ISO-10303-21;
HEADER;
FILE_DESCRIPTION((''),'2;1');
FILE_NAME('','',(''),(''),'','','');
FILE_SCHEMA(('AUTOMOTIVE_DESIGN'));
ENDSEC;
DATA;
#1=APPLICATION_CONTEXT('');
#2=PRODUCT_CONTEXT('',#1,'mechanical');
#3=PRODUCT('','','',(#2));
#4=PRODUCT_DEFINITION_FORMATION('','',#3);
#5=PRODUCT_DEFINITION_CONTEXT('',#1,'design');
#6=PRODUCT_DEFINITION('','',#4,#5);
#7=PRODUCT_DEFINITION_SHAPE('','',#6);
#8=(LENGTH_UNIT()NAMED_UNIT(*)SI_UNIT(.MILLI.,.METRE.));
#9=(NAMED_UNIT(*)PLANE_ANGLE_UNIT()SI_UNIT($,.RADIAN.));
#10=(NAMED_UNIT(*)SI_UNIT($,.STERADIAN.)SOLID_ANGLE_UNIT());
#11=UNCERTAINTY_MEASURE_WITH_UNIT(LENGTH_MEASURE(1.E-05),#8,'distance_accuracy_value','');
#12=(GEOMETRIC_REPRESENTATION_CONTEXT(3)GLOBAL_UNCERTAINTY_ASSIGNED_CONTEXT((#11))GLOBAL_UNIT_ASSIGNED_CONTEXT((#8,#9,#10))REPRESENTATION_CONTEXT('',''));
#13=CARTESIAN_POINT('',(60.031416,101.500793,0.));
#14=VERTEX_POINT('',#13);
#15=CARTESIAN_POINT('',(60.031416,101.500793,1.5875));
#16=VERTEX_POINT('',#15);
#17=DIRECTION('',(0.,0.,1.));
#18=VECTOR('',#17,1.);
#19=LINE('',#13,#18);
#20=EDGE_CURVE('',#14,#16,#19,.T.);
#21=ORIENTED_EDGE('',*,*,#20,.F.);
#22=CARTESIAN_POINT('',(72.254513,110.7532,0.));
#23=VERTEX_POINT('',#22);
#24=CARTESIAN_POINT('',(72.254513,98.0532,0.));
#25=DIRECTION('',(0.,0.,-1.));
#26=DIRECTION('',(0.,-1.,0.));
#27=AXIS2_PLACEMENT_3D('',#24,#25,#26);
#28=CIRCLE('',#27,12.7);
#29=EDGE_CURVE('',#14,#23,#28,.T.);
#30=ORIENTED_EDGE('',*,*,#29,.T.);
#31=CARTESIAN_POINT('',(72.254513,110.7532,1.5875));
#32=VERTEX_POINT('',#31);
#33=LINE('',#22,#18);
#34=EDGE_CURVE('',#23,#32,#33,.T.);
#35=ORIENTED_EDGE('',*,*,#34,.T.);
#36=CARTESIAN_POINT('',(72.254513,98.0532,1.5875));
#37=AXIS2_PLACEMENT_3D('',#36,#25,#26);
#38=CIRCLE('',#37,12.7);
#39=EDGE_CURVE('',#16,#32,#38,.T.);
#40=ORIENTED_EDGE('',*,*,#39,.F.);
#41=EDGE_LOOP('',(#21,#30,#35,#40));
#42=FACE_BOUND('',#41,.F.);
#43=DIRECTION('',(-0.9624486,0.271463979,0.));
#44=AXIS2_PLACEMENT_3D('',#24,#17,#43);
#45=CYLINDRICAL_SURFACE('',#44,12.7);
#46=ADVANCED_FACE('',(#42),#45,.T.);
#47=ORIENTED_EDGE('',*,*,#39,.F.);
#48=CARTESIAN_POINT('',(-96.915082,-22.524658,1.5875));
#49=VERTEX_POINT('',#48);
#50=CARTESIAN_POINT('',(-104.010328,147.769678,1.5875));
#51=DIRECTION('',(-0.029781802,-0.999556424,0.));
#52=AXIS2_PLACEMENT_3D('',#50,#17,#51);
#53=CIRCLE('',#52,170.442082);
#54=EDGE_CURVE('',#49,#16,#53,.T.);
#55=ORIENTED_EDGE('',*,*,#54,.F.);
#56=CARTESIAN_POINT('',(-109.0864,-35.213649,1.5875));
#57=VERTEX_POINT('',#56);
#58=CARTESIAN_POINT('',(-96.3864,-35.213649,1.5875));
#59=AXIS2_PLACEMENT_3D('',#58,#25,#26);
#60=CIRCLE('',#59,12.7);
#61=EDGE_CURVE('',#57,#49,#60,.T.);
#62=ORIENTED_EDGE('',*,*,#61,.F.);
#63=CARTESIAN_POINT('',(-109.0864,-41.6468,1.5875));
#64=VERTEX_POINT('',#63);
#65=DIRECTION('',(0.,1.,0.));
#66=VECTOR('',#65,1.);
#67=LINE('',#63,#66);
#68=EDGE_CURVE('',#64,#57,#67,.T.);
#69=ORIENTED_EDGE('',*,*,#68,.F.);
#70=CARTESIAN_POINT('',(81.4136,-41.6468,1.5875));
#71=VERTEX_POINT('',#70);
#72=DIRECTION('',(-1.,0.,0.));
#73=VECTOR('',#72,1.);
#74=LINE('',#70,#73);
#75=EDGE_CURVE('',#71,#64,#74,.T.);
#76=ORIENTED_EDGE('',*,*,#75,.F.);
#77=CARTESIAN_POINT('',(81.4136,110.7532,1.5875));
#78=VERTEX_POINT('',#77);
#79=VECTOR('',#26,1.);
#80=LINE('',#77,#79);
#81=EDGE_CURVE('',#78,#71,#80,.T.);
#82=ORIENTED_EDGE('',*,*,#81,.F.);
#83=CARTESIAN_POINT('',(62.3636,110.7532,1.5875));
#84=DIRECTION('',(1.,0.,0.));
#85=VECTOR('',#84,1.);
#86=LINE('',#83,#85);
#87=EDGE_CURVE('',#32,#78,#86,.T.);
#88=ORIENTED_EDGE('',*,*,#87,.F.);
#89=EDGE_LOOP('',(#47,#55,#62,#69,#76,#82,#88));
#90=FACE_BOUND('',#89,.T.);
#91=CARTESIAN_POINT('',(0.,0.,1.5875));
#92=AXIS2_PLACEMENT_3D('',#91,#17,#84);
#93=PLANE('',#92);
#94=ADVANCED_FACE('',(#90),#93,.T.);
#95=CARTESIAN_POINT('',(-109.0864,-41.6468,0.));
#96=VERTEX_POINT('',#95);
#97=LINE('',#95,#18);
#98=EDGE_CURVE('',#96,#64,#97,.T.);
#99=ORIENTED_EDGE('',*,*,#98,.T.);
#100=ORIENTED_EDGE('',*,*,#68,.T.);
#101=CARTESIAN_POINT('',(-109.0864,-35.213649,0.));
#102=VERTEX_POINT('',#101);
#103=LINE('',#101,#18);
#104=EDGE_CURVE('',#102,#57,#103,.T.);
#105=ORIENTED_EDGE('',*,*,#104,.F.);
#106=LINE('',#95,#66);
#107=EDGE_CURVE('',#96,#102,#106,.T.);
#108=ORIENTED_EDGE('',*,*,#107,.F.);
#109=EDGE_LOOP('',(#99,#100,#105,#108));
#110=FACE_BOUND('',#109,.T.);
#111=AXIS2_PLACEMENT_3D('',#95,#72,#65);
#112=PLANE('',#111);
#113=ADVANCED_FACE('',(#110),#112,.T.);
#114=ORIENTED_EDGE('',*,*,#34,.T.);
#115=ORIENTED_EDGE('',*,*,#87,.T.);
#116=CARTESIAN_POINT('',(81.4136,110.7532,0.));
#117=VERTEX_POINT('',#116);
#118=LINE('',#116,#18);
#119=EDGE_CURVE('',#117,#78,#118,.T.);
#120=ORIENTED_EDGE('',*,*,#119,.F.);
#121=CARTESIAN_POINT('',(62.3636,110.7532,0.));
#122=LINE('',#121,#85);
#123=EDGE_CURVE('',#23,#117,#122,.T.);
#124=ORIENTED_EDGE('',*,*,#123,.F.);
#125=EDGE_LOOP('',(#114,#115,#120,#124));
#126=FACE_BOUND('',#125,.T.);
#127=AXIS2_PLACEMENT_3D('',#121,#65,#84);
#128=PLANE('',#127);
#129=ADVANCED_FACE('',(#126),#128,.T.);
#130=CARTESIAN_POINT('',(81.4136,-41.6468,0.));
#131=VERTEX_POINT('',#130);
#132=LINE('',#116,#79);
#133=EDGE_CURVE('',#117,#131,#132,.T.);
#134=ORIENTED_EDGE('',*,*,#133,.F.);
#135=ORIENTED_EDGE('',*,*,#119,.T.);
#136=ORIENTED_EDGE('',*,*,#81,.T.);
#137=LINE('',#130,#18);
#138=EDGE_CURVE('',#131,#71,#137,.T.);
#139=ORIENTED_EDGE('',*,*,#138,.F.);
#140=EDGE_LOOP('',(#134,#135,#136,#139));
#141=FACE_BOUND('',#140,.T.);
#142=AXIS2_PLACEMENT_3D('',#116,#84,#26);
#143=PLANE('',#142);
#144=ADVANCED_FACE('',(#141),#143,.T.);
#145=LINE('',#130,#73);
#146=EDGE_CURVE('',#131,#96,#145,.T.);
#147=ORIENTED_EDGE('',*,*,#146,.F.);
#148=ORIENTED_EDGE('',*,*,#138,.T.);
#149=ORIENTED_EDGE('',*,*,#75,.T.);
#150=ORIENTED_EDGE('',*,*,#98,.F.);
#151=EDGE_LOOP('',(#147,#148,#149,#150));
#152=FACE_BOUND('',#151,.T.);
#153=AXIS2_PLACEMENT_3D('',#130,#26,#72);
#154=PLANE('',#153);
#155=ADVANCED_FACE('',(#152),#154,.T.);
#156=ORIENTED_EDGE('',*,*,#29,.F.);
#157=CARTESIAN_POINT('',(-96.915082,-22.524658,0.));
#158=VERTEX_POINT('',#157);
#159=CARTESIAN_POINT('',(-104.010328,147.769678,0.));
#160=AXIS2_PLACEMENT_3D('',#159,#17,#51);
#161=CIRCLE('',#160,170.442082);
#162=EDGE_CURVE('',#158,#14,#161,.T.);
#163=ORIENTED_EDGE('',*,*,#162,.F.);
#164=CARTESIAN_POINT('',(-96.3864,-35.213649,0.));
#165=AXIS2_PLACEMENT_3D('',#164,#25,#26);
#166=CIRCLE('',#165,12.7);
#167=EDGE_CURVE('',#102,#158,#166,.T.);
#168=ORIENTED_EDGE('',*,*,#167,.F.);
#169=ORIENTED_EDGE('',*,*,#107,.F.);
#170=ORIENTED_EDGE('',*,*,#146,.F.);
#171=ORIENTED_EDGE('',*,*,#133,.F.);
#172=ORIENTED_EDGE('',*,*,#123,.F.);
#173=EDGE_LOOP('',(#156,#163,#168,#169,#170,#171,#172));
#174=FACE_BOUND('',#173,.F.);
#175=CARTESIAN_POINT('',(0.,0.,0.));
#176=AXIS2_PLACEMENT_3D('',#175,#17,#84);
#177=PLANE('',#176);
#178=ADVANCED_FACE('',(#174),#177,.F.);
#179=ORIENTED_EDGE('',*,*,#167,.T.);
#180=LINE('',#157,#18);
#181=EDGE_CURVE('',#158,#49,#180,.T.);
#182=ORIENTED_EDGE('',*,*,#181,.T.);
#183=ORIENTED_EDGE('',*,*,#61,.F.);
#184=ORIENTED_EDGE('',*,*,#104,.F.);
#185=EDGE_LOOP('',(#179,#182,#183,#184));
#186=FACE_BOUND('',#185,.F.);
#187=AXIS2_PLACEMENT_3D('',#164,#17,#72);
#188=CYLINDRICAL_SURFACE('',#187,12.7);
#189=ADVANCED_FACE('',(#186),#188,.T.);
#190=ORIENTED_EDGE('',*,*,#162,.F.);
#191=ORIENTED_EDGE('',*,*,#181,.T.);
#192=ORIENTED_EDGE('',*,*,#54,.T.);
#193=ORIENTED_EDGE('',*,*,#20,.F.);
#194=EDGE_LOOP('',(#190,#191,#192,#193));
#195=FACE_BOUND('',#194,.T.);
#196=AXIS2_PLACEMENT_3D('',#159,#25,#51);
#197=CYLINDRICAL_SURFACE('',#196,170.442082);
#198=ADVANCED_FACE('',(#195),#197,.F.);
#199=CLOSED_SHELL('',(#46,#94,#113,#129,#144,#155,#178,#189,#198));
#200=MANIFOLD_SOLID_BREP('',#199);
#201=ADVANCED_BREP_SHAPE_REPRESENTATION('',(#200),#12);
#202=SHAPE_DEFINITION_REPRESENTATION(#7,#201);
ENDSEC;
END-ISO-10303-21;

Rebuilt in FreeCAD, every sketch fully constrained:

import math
import FreeCAD as App
import Part
import Sketcher
Q = App.Units.Quantity


def edges_at(feature, points):
    """Names of the edges that pass closest to the given points."""
    edges = feature.Shape.Edges
    near = lambda p: min(range(len(edges)), key=lambda i: edges[i].distToShape(Part.Vertex(*p))[0])
    return sorted({f"Edge{near(p) + 1}" for p in points})

doc = App.newDocument("Part")
body = doc.addObject("PartDesign::Body", "Body")

# Sketch on XY plane
sketch1 = doc.addObject("Sketcher::SketchObject", "Sketch")
body.addObject(sketch1)
sketch1.AttachmentSupport = (doc.XY_Plane, [""])
sketch1.MapMode = "FlatFace"
sketch1.addGeometry(Part.LineSegment(App.Vector(-109, -23, 0), App.Vector(-109, -42, 0)), False)
sketch1.addGeometry(Part.LineSegment(App.Vector(-109, -42, 0), App.Vector(81, -42, 0)), False)
sketch1.addGeometry(Part.LineSegment(App.Vector(81, -42, 0), App.Vector(81, 111, 0)), False)
sketch1.addGeometry(Part.LineSegment(App.Vector(81, 111, 0), App.Vector(62, 111, 0)), False)
sketch1.addGeometry(Part.ArcOfCircle(Part.Circle(App.Vector(-104, 148, 0), App.Vector(0, 0, 1), 170), math.radians(-92), math.radians(-13)), False)
sketch1.addConstraint(Sketcher.Constraint("Coincident", 0, 2, 1, 1))
sketch1.addConstraint(Sketcher.Constraint("Coincident", 1, 2, 2, 1))
sketch1.addConstraint(Sketcher.Constraint("Coincident", 2, 2, 3, 1))
sketch1.addConstraint(Sketcher.Constraint("Coincident", 3, 2, 4, 2))
sketch1.addConstraint(Sketcher.Constraint("Coincident", 4, 1, 0, 1))
sketch1.addConstraint(Sketcher.Constraint("Vertical", 0))
sketch1.addConstraint(Sketcher.Constraint("Horizontal", 1))
sketch1.addConstraint(Sketcher.Constraint("Vertical", 2))
sketch1.addConstraint(Sketcher.Constraint("Horizontal", 3))
sketch1.addConstraint(Sketcher.Constraint("Equal", 3, 0))
sketch1.addConstraint(Sketcher.Constraint("DistanceY", 2, 1, 2, 2, Q("6 in")))
sketch1.addConstraint(Sketcher.Constraint("DistanceX", 1, 1, 1, 2, Q("7.5 in")))
sketch1.addConstraint(Sketcher.Constraint("DistanceX", 3, 2, 3, 1, Q("0.75 in")))
sketch1.addConstraint(Sketcher.Constraint("Radius", 4, 170.4423))
sketch1.addConstraint(Sketcher.Constraint("DistanceX", 4, 3, -1, 1, Q("4.0949 in")))
sketch1.addConstraint(Sketcher.Constraint("DistanceY", -1, 1, 4, 3, 147.77))
pad1 = doc.addObject("PartDesign::Pad", "Pad")
body.addObject(pad1)
pad1.Profile = sketch1
pad1.Length = Q("0.0625 in")
doc.recompute()

fillet = doc.addObject("PartDesign::Fillet", "Fillet")
body.addObject(fillet)
fillet.Base = (pad1, edges_at(pad1, [(62.364, 110.753, 0.794), (-109.086, -22.597, 0.794)]))
fillet.Radius = Q("0.5 in")

doc.recompute()
